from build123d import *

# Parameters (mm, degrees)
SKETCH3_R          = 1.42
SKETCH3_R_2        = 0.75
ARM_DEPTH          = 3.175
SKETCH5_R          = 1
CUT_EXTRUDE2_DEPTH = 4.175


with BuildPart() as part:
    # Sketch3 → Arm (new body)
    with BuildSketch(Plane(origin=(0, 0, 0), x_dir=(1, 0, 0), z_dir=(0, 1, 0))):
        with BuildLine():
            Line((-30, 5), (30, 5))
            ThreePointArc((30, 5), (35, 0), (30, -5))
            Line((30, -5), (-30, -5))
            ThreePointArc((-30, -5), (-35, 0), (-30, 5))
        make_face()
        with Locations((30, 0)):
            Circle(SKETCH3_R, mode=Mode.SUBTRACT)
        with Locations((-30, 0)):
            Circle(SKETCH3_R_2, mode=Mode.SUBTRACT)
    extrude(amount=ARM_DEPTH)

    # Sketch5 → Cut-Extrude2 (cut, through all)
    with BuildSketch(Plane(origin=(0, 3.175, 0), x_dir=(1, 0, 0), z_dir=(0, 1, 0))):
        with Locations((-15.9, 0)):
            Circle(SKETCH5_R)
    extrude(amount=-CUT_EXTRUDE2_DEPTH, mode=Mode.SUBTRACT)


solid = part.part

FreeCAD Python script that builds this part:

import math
import FreeCAD as App
import Part
import Sketcher

V = App.Vector
Q = App.Units.Quantity

doc = App.newDocument("Part")
body = doc.addObject("PartDesign::Body", "Body")

# Sketch on XZ plane
sketch1 = doc.addObject("Sketcher::SketchObject", "Sketch")
body.addObject(sketch1)
sketch1.AttachmentSupport = (doc.XZ_Plane, [""])
sketch1.MapMode = "FlatFace"
sketch1.addGeometry([
    Part.LineSegment(V(30, -5, 0), V(-30, -5, 0)),  # 0
    Part.ArcOfCircle(Part.Circle(V(-30, 0, 0), V(0, 0, 1), 5), math.radians(90), math.radians(270)),  # 1
    Part.LineSegment(V(-30, 5, 0), V(30, 5, 0)),  # 2
    Part.ArcOfCircle(Part.Circle(V(30, 0, 0), V(0, 0, 1), 5), math.radians(-90), math.radians(90)),  # 3
    Part.Circle(V(30, 0, 0), V(0, 0, 1), 1.42),  # 4
    Part.Circle(V(-30, 0, 0), V(0, 0, 1), 0.75),  # 5
], False)
sketch1.addConstraint([
    Sketcher.Constraint("Tangent", 0, 2, 1, 2),
    Sketcher.Constraint("Tangent", 1, 1, 2, 1),
    Sketcher.Constraint("Tangent", 2, 2, 3, 2),
    Sketcher.Constraint("Tangent", 3, 1, 0, 1),
    Sketcher.Constraint("Horizontal", 0),
    Sketcher.Constraint("Horizontal", 2),
    Sketcher.Constraint("Coincident", 4, 3, 3, 3),
    Sketcher.Constraint("Coincident", 5, 3, 1, 3),
    Sketcher.Constraint("Symmetric", 1, 3, 3, 3, -1, 1),
    Sketcher.Constraint("Radius", 1, Q("5 mm")),
    Sketcher.Constraint("Diameter", 5, Q("1.5 mm")),
    Sketcher.Constraint("Diameter", 4, Q("2.84 mm")),
    Sketcher.Constraint("DistanceX", 0, 2, 0, 1, Q("60 mm")),
])
pad1 = doc.addObject("PartDesign::Pad", "Pad")
body.addObject(pad1)
pad1.Profile = sketch1
pad1.Length = 3.175
pad1.Reversed = True

# Sketch on XZ plane
sketch2 = doc.addObject("Sketcher::SketchObject", "Sketch001")
body.addObject(sketch2)
sketch2.AttachmentSupport = (doc.XZ_Plane, [""])
sketch2.MapMode = "FlatFace"
sketch2.AttachmentOffset = App.Placement(V(0, 0, -3.175), App.Rotation())
sketch2.addGeometry(Part.Circle(V(-15.9, 0, 0), V(0, 0, 1), 1), False)
sketch2.addConstraint([
    Sketcher.Constraint("PointOnObject", 0, 3, -1),
    Sketcher.Constraint("Diameter", 0, Q("2 mm")),
    Sketcher.Constraint("DistanceX", 0, 3, -1, 1, Q("15.9 mm")),
])
pocket1 = doc.addObject("PartDesign::Pocket", "Pocket")
body.addObject(pocket1)
pocket1.Profile = sketch2
pocket1.Type = "ThroughAll"
pocket1.Reversed = True

doc.recompute()
